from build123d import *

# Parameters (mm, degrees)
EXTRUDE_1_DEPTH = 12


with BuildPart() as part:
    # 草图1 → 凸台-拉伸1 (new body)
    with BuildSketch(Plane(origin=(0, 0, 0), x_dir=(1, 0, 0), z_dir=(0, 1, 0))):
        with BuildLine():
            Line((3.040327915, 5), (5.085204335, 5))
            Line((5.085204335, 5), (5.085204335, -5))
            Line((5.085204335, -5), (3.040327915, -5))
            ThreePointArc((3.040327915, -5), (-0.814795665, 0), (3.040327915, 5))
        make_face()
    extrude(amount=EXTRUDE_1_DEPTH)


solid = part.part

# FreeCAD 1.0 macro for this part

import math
import FreeCAD as App
import Part
import Sketcher

V = App.Vector
Q = App.Units.Quantity

doc = App.newDocument("Part")
body = doc.addObject("PartDesign::Body", "Body")

# Sketch on XZ plane
sketch1 = doc.addObject("Sketcher::SketchObject", "Sketch")
body.addObject(sketch1)
sketch1.AttachmentSupport = (doc.XZ_Plane, [""])
sketch1.MapMode = "FlatFace"
sketch1.addGeometry([
    Part.LineSegment(V(5.085204, -5, 0), V(3.040328, -5, 0)),
    Part.ArcOfCircle(Part.Circle(V(4.355204, 0, 0), V(0, 0, 1), 5.17), math.radians(104.733777), math.radians(255.266223)),
    Part.LineSegment(V(3.040328, 5, 0), V(5.085204, 5, 0)),
    Part.LineSegment(V(5.085204, 5, 0), V(5.085204, -5, 0)),
], False)
sketch1.addConstraint([
    Sketcher.Constraint("Coincident", 0, 2, 1, 2),
    Sketcher.Constraint("Coincident", 1, 1, 2, 1),
    Sketcher.Constraint("Coincident", 2, 2, 3, 1),
    Sketcher.Constraint("Coincident", 3, 2, 0, 1),
    Sketcher.Constraint("Horizontal", 0),
    Sketcher.Constraint("Horizontal", 2),
    Sketcher.Constraint("Vertical", 3),
    Sketcher.Constraint("Symmetric", 0, 2, 1, 1, -1),
    Sketcher.Constraint("DistanceY", 3, 2, 3, 1, Q("10 mm")),
    Sketcher.Constraint("Radius", 1, Q("5.17 mm")),
    Sketcher.Constraint("DistanceX", 1, 3, 2, 2, Q("0.73 mm")),
    Sketcher.Constraint("DistanceX", -1, 1, 1, 3, Q("4.355204 mm")),
])
pad1 = doc.addObject("PartDesign::Pad", "Pad")
body.addObject(pad1)
pad1.Profile = sketch1
pad1.Length = 12
pad1.Reversed = True

doc.recompute()
